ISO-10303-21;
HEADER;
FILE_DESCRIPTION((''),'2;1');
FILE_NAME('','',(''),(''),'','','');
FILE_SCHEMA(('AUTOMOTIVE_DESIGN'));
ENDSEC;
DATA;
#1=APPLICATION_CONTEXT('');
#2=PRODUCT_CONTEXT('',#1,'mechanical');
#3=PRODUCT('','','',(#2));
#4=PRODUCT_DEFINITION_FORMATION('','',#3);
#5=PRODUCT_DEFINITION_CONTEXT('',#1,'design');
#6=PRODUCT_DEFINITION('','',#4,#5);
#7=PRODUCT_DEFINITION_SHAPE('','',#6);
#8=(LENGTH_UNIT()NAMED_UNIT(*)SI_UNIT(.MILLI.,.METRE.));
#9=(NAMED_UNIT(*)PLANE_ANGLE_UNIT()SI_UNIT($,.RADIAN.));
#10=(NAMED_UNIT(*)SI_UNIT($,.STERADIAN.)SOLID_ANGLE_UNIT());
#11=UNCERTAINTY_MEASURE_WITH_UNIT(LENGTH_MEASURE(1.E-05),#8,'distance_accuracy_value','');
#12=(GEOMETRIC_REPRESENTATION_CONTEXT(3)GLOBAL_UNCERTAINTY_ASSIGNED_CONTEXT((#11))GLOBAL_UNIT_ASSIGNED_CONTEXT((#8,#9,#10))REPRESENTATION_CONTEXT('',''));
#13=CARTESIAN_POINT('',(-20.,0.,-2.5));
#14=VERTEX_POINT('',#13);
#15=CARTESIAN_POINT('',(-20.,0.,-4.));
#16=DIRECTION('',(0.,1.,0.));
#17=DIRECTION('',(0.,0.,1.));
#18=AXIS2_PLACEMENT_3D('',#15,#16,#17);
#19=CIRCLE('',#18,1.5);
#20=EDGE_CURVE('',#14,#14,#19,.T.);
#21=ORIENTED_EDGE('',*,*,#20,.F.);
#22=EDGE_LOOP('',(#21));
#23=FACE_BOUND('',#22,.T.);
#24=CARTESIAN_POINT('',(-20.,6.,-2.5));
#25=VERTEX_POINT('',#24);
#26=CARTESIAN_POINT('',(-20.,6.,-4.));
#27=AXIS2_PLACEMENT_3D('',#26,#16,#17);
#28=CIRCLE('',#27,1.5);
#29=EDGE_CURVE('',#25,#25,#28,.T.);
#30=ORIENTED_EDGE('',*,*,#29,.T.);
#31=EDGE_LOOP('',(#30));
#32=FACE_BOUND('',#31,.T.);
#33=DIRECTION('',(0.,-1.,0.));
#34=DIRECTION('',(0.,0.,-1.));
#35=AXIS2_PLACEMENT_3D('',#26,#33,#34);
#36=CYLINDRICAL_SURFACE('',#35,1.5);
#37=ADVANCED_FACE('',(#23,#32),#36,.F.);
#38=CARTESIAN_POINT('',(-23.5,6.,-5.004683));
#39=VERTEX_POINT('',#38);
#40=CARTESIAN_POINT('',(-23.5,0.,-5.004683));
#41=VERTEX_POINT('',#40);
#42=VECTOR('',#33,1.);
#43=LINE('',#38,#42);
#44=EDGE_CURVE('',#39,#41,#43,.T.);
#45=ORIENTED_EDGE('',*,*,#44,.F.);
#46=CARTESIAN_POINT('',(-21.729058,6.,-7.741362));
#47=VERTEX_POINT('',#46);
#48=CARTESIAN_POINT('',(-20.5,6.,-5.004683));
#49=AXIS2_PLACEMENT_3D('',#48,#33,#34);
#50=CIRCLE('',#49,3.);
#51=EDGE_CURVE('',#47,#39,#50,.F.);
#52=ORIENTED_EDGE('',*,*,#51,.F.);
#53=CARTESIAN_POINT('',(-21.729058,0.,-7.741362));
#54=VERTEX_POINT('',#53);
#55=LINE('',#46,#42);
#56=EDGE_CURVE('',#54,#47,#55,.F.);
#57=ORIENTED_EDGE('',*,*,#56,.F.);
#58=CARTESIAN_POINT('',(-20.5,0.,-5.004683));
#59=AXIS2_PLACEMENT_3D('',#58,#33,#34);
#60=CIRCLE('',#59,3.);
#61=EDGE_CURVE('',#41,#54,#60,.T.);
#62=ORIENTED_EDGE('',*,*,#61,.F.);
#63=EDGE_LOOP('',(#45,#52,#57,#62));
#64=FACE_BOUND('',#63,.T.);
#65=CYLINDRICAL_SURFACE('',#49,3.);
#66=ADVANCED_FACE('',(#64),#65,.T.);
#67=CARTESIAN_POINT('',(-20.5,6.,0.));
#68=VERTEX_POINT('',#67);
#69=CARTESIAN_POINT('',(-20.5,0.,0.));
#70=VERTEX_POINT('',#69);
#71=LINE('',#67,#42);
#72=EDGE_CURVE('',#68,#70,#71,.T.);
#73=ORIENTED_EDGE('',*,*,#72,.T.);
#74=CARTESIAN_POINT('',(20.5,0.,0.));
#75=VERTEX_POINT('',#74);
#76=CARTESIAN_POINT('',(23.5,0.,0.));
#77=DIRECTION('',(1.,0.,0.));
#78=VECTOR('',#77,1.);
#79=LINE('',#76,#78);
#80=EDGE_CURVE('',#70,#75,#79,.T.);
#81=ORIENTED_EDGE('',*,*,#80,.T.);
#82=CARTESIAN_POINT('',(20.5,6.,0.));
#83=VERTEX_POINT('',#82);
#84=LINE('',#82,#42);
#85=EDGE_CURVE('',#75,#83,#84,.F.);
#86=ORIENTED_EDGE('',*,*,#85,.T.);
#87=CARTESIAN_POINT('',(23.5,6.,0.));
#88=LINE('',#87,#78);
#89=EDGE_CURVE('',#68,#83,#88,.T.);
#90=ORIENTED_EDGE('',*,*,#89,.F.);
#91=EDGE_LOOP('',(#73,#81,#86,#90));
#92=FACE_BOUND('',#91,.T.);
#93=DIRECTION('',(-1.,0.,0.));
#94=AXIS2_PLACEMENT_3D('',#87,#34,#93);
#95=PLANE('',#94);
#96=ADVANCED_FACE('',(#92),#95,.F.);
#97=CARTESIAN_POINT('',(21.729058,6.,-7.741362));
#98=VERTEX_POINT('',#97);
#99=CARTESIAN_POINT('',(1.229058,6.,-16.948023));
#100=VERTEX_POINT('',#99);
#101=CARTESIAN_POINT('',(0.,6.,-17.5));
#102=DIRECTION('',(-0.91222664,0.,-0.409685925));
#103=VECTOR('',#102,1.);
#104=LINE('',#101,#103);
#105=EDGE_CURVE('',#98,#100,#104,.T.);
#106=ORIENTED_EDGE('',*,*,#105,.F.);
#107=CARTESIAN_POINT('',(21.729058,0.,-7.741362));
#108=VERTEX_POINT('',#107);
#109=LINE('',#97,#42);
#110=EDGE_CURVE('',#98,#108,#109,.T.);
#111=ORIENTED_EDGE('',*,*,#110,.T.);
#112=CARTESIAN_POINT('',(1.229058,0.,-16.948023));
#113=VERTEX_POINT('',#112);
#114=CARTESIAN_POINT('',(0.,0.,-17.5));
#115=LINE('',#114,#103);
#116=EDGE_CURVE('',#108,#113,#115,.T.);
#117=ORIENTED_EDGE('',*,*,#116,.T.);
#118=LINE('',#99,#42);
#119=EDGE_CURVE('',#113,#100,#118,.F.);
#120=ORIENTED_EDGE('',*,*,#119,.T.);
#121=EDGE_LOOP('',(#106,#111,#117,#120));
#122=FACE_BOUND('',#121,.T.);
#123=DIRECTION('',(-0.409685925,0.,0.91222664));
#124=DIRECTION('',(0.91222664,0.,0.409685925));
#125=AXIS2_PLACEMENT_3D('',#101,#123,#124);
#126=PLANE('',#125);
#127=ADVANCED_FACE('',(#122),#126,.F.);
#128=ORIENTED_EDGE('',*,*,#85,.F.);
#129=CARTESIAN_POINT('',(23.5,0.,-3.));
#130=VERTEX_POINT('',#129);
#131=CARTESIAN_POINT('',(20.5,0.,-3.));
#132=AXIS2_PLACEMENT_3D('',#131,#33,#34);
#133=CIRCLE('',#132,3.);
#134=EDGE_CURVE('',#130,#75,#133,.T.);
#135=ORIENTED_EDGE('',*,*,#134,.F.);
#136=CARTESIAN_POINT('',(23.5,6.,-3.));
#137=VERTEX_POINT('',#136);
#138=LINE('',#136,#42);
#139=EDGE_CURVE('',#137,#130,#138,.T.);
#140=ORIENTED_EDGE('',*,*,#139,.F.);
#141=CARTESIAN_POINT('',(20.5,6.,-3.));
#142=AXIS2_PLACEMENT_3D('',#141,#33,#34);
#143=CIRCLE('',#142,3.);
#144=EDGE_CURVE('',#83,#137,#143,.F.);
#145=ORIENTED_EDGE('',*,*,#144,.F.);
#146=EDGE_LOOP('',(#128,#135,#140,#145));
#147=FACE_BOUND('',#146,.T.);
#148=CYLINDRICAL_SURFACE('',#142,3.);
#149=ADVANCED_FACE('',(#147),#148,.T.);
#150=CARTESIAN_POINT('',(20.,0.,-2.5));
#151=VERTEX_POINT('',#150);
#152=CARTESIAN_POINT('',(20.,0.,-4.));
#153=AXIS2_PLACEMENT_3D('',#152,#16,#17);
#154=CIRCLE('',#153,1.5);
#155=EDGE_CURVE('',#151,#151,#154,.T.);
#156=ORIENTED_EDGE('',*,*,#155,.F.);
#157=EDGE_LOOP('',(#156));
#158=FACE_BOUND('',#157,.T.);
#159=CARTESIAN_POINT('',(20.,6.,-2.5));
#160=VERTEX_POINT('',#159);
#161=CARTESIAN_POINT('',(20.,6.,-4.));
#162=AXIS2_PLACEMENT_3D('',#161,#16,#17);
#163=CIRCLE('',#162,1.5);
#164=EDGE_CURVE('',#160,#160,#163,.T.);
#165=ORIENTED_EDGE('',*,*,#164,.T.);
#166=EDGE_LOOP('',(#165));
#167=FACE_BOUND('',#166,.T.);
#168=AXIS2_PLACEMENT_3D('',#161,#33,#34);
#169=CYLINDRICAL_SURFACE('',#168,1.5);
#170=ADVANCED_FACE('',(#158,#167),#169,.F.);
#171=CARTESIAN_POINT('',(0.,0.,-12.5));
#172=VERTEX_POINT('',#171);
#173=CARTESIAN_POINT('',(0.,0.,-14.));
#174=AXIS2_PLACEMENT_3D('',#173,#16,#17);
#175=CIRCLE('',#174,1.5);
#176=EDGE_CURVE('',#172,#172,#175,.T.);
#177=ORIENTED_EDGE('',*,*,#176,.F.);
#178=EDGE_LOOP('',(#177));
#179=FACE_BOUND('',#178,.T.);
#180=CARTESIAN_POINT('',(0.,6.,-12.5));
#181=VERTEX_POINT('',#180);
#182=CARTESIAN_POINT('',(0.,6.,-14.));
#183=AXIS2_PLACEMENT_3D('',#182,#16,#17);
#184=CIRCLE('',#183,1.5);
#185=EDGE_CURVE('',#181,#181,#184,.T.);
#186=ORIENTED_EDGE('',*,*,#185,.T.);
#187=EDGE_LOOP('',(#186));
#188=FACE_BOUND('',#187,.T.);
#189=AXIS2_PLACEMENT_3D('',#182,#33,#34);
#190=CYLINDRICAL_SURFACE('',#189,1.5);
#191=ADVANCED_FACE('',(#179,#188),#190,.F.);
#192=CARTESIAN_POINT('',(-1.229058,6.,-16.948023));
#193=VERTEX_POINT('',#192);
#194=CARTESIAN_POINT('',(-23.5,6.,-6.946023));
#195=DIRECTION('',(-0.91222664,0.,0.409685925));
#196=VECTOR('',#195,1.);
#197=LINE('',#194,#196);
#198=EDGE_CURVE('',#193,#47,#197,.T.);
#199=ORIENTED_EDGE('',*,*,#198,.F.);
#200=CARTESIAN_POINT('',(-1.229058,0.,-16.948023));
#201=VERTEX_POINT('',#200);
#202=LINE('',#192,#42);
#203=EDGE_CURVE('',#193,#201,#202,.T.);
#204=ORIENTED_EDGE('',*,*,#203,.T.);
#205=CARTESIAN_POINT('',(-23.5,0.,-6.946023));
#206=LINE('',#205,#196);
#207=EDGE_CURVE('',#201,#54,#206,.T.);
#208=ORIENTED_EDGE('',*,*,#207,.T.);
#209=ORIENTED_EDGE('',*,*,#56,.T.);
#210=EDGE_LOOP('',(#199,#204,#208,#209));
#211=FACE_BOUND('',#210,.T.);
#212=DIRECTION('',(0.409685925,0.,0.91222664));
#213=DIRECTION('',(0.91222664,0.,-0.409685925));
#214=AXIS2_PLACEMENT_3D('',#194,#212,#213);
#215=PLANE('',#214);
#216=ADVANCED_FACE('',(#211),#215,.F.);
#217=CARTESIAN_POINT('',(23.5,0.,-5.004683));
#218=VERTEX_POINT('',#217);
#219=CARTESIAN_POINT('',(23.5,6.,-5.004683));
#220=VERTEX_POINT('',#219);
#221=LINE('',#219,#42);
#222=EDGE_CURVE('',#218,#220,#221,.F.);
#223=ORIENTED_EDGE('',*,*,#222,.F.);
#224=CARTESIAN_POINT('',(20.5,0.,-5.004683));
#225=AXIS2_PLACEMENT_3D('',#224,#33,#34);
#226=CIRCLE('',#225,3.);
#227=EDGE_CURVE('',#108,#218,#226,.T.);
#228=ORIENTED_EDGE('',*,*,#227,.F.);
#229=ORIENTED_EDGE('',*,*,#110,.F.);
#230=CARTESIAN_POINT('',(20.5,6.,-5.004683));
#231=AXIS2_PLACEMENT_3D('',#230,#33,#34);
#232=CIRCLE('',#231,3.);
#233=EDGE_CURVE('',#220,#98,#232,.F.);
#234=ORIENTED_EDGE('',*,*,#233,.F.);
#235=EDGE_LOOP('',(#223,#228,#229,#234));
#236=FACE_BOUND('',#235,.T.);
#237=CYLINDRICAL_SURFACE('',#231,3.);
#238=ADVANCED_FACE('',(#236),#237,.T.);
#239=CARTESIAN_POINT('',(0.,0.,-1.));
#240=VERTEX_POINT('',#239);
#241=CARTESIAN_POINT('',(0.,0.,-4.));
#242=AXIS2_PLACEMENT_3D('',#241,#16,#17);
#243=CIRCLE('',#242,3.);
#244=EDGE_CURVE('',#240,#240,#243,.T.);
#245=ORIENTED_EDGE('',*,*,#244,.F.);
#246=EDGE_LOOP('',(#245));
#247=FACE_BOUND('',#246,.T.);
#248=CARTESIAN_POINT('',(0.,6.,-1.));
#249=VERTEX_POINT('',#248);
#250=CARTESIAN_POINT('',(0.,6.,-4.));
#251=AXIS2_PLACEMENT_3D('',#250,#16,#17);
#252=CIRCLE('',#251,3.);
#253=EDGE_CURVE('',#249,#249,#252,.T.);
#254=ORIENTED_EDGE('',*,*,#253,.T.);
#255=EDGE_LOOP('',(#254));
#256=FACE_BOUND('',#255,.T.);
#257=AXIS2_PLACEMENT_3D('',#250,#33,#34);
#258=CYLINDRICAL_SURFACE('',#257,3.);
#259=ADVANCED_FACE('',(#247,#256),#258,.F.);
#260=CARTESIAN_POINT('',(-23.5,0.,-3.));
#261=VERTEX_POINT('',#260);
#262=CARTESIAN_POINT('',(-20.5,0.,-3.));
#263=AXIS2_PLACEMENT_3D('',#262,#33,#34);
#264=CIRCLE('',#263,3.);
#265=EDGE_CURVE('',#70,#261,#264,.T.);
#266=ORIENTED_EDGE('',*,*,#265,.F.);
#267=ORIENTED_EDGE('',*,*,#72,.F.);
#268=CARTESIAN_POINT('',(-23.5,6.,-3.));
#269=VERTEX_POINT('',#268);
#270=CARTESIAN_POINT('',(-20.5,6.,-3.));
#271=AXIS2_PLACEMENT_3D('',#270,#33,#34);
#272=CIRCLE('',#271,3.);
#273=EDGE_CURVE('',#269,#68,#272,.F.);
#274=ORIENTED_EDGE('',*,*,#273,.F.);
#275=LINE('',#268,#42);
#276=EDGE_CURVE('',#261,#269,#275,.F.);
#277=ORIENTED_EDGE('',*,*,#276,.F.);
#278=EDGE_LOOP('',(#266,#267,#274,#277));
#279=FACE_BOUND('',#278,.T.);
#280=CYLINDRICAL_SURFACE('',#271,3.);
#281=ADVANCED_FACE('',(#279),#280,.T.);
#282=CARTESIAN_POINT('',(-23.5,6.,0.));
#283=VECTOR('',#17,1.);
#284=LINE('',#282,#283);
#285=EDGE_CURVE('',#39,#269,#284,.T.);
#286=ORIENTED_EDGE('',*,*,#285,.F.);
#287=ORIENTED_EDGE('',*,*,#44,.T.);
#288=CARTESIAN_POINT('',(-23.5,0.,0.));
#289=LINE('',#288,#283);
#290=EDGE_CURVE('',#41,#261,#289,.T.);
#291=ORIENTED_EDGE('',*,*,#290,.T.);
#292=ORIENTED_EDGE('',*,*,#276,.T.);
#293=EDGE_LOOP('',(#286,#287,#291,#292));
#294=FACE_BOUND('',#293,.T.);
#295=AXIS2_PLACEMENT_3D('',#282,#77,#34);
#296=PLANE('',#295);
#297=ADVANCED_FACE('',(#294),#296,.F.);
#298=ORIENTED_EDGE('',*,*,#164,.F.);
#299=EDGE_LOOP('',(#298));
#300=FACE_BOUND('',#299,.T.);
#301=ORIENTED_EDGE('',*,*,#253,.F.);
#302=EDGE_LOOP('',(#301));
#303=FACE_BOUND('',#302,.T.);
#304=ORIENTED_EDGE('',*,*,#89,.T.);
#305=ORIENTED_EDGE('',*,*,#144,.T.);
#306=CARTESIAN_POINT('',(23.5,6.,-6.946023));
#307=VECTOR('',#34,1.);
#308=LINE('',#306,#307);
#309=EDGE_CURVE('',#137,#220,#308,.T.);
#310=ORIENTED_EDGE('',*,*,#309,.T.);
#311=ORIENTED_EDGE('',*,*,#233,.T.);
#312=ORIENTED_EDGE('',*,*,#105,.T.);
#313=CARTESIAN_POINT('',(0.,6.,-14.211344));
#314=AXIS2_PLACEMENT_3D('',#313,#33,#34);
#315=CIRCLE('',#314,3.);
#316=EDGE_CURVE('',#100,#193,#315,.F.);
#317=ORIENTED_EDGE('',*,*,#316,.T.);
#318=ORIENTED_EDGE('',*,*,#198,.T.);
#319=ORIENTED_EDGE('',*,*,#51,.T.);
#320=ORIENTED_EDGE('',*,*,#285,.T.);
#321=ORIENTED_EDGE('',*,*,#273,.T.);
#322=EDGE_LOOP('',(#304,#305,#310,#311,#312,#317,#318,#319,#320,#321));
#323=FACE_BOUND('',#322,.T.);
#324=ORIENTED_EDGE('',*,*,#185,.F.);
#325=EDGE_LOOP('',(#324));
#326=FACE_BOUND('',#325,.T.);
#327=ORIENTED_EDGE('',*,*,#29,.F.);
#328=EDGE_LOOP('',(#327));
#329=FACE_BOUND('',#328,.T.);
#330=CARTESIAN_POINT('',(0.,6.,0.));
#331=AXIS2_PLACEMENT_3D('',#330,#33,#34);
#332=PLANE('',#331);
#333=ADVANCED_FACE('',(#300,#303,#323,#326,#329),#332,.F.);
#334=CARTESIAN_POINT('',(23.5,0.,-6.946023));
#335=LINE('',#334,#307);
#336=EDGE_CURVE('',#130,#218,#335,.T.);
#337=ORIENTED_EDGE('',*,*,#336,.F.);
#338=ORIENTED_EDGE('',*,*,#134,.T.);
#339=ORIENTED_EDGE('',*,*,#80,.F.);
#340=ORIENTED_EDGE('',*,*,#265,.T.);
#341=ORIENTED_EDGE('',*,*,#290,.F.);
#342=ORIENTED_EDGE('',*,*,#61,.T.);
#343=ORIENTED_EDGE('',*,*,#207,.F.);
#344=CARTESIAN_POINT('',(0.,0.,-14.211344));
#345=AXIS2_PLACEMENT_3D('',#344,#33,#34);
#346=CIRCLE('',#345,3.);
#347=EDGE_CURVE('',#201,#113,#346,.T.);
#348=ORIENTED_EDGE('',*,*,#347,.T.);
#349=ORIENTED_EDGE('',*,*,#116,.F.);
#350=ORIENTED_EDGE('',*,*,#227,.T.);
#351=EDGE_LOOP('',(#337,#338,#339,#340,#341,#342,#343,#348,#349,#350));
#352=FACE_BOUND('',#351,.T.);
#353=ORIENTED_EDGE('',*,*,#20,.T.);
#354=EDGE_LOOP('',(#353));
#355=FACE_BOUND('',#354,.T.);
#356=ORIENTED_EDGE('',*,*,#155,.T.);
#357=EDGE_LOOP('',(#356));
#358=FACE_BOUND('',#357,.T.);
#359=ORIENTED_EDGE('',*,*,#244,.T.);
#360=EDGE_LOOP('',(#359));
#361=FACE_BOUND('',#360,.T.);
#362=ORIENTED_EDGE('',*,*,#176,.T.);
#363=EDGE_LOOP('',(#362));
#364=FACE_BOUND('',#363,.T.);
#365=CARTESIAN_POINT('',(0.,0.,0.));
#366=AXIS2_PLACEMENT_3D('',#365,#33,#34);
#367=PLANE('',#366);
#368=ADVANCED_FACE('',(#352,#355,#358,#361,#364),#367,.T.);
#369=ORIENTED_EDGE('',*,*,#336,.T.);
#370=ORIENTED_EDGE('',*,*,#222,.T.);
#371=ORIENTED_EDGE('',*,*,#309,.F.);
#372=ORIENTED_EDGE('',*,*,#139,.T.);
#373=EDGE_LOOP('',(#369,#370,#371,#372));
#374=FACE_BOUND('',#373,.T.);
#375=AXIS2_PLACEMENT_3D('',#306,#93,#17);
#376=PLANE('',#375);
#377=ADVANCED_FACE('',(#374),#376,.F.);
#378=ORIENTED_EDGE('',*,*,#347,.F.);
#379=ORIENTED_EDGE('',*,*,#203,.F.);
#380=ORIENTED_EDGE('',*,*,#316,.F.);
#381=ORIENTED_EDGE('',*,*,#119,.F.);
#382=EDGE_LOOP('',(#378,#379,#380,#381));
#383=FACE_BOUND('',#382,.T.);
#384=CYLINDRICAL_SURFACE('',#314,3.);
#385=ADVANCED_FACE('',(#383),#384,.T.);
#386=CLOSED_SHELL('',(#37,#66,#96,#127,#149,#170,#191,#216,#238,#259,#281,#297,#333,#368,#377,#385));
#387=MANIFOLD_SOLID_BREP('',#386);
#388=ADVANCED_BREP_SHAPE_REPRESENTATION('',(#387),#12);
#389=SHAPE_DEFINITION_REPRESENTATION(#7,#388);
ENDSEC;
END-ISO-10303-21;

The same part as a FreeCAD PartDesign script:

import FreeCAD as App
import Part
import Sketcher
from FreeCAD import Vector


def edges_at(feature, points):
    """Names of the edges that pass closest to the given points."""
    edges = feature.Shape.Edges
    near = lambda p: min(range(len(edges)), key=lambda i: edges[i].distToShape(Part.Vertex(*p))[0])
    return sorted({f"Edge{near(p) + 1}" for p in points})

doc = App.newDocument("Part")
body = doc.addObject("PartDesign::Body", "Body")

# Sketch on XZ plane
sketch1 = doc.addObject("Sketcher::SketchObject", "Sketch")
body.addObject(sketch1)
sketch1.AttachmentSupport = (doc.XZ_Plane, [""])
sketch1.MapMode = "FlatFace"
sketch1.addGeometry([
    Part.LineSegment(Vector(-23.5, 0, 0), Vector(23.5, 0, 0)),  # 0
    Part.LineSegment(Vector(23.5, 0, 0), Vector(23.5, -6.9, 0)),  # 1
    Part.LineSegment(Vector(23.5, -6.9, 0), Vector(0, -17.5, 0)),  # 2
    Part.LineSegment(Vector(0, -17.5, 0), Vector(-23.5, -6.9, 0)),  # 3
    Part.LineSegment(Vector(-23.5, -6.9, 0), Vector(-23.5, 0, 0)),  # 4
    Part.Circle(Vector(20, -4, 0), Vector(0, 0, 1), 1.5),  # 5
    Part.Circle(Vector(0, -4, 0), Vector(0, 0, 1), 3),  # 6
    Part.Circle(Vector(-20, -4, 0), Vector(0, 0, 1), 1.5),  # 7
    Part.Circle(Vector(0, -14, 0), Vector(0, 0, 1), 1.5),  # 8
], False)
sketch1.addConstraint([
    Sketcher.Constraint("Coincident", 0, 2, 1, 1),
    Sketcher.Constraint("Coincident", 1, 2, 2, 1),
    Sketcher.Constraint("Coincident", 2, 2, 3, 1),
    Sketcher.Constraint("Coincident", 3, 2, 4, 1),
    Sketcher.Constraint("Coincident", 4, 2, 0, 1),
    Sketcher.Constraint("Horizontal", 0),
    Sketcher.Constraint("Vertical", 1),
    Sketcher.Constraint("Vertical", 4),
    Sketcher.Constraint("Equal", 5, 7),
    Sketcher.Constraint("Equal", 7, 8),
    Sketcher.Constraint("Symmetric", 0, 2, 4, 2, -1, 1),
    Sketcher.Constraint("Symmetric", 5, 3, 7, 3, -2),
    Sketcher.Constraint("PointOnObject", 6, 3, -2),
    Sketcher.Constraint("PointOnObject", 8, 3, -2),
    Sketcher.Constraint("PointOnObject", 2, 2, -2),
    Sketcher.Constraint("Horizontal", 5, 3, 6, 3),
    Sketcher.Constraint("Horizontal", 1, 2, 3, 2),
    Sketcher.Constraint("Diameter", 5, 3.0),
    Sketcher.Constraint("Diameter", 6, 6.0),
    Sketcher.Constraint("DistanceX", 0, 1, 0, 2, 47.0),
    Sketcher.Constraint("DistanceX", -1, 1, 5, 3, 20.0),
    Sketcher.Constraint("DistanceY", 5, 3, -1, 1, 4.0),
    Sketcher.Constraint("DistanceY", 8, 3, -1, 1, 14.0),
    Sketcher.Constraint("DistanceY", 2, 2, -1, 1, 17.5),
    Sketcher.Constraint("Distance", 2, 25.761142),
])
pad1 = doc.addObject("PartDesign::Pad", "Pad")
body.addObject(pad1)
pad1.Profile = sketch1
pad1.Length = 6
pad1.Reversed = True
doc.recompute()

fillet = doc.addObject("PartDesign::Fillet", "Fillet")
body.addObject(fillet)
fillet.Base = (pad1, edges_at(pad1, [
    (23.5, 3, 0),
    (-23.5, 3, 0),
    (-23.5, 3, -6.946),
    (0, 3, -17.5),
    (23.5, 3, -6.946),
]))
fillet.Radius = 3

doc.recompute()
